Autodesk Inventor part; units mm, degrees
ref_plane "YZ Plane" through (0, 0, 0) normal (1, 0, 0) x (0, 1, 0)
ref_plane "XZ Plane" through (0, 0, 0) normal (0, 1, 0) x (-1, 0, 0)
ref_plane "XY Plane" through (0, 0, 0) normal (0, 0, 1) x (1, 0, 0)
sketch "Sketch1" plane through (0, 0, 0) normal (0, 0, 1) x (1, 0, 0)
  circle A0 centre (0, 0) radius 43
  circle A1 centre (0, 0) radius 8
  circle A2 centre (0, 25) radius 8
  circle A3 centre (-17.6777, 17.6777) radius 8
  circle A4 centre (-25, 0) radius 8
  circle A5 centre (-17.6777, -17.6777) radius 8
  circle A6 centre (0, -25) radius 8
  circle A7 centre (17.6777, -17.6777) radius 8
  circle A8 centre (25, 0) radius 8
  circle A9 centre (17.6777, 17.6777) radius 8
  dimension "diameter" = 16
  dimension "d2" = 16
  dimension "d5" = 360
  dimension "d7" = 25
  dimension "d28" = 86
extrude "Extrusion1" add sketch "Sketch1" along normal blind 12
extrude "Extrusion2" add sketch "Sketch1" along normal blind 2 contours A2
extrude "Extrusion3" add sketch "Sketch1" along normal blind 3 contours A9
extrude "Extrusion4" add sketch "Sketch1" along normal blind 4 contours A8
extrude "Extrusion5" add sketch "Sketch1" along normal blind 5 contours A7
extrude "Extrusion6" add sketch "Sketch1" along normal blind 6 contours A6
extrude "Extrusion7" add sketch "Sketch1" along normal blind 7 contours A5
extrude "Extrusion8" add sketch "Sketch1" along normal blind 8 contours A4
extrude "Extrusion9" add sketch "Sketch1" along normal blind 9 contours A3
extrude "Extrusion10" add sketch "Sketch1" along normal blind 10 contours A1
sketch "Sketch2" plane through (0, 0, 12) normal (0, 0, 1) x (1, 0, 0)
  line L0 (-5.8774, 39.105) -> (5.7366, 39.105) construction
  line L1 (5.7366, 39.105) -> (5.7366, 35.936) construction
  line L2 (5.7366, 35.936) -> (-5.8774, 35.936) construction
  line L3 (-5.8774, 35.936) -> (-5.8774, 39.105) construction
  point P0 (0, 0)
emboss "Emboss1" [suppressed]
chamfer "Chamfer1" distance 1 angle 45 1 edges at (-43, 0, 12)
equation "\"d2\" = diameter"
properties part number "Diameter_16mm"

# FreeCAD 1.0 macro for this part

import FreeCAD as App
import Part
import Sketcher
from FreeCAD import Vector
Q = App.Units.Quantity


def edges_at(feature, points):
    """Names of the edges that pass closest to the given points."""
    edges = feature.Shape.Edges
    near = lambda p: min(range(len(edges)), key=lambda i: edges[i].distToShape(Part.Vertex(*p))[0])
    return sorted({f"Edge{near(p) + 1}" for p in points})

doc = App.newDocument("Part")
body = doc.addObject("PartDesign::Body", "Body")

sketch1 = body.newObject("Sketcher::SketchObject", "Sketch")
sketch1.AttachmentSupport = (doc.getObject("XY_Plane"), [""])
sketch1.MapMode = "FlatFace"
sketch1.addGeometry([
    Part.Circle(Vector(0, 0, 0), Vector(0, 0, 1), 43),
    Part.Circle(Vector(-18, -18, 0), Vector(0, 0, 1), 8),
    Part.Circle(Vector(0, -25, 0), Vector(0, 0, 1), 8),
    Part.Circle(Vector(18, -18, 0), Vector(0, 0, 1), 8),
    Part.Circle(Vector(-25, 0, 0), Vector(0, 0, 1), 8),
    Part.Circle(Vector(-18, 18, 0), Vector(0, 0, 1), 8),
    Part.Circle(Vector(0, 0, 0), Vector(0, 0, 1), 8),
    Part.Circle(Vector(18, 18, 0), Vector(0, 0, 1), 8),
    Part.Circle(Vector(25, 0, 0), Vector(0, 0, 1), 8),
    Part.Circle(Vector(0, 25, 0), Vector(0, 0, 1), 8),
], False)
sketch1.addConstraint([
    Sketcher.Constraint("Coincident", 0, 3, -1, 1),
    Sketcher.Constraint("Coincident", 6, 3, -1, 1),
    Sketcher.Constraint("Equal", 1, 2),
    Sketcher.Constraint("Equal", 2, 3),
    Sketcher.Constraint("Equal", 3, 4),
    Sketcher.Constraint("Equal", 4, 5),
    Sketcher.Constraint("Equal", 5, 6),
    Sketcher.Constraint("Equal", 6, 7),
    Sketcher.Constraint("Equal", 7, 8),
    Sketcher.Constraint("Equal", 8, 9),
    Sketcher.Constraint("Symmetric", 3, 3, 5, 3, -1, 1),
    Sketcher.Constraint("Symmetric", 1, 3, 7, 3, -1, 1),
    Sketcher.Constraint("Symmetric", 4, 3, 8, 3, -1, 1),
    Sketcher.Constraint("Symmetric", 2, 3, 9, 3, -1, 1),
    Sketcher.Constraint("Symmetric", 1, 3, 3, 3, -2),
    Sketcher.Constraint("PointOnObject", 2, 3, -2),
    Sketcher.Constraint("PointOnObject", 4, 3, -1),
    Sketcher.Constraint("Diameter", 0, Q("86 mm")),
    Sketcher.Constraint("Diameter", 1, Q("16 mm")),
    Sketcher.Constraint("DistanceY", 2, 3, -1, 1, Q("25 mm")),
    Sketcher.Constraint("DistanceX", 4, 3, -1, 1, Q("25 mm")),
    Sketcher.Constraint("DistanceX", 1, 3, -1, 1, Q("17.6777 mm")),
    Sketcher.Constraint("DistanceY", 1, 3, -1, 1, Q("17.6777 mm")),
])
pad1 = body.newObject("PartDesign::Pad", "Pad")
pad1.Profile = sketch1
pad1.Length = 12

sketch2 = body.newObject("Sketcher::SketchObject", "Sketch001")
sketch2.AttachmentSupport = (doc.getObject("XY_Plane"), [""])
sketch2.MapMode = "FlatFace"
sketch2.addGeometry(Part.Circle(Vector(0, 25, 0), Vector(0, 0, 1), 8), False)
sketch2.addConstraint([
    Sketcher.Constraint("PointOnObject", 0, 3, -2),
    Sketcher.Constraint("Diameter", 0, Q("16 mm")),
    Sketcher.Constraint("DistanceY", -1, 1, 0, 3, Q("25 mm")),
])
pad2 = body.newObject("PartDesign::Pad", "Pad001")
pad2.Profile = sketch2
pad2.Length = 2

sketch3 = body.newObject("Sketcher::SketchObject", "Sketch002")
sketch3.AttachmentSupport = (doc.getObject("XY_Plane"), [""])
sketch3.MapMode = "FlatFace"
sketch3.addGeometry(Part.Circle(Vector(18, 18, 0), Vector(0, 0, 1), 8), False)
sketch3.addConstraint([
    Sketcher.Constraint("Diameter", 0, Q("16 mm")),
    Sketcher.Constraint("DistanceX", -1, 1, 0, 3, Q("17.6777 mm")),
    Sketcher.Constraint("DistanceY", -1, 1, 0, 3, Q("17.6777 mm")),
])
pad3 = body.newObject("PartDesign::Pad", "Pad002")
pad3.Profile = sketch3
pad3.Length = 3

sketch4 = body.newObject("Sketcher::SketchObject", "Sketch003")
sketch4.AttachmentSupport = (doc.getObject("XY_Plane"), [""])
sketch4.MapMode = "FlatFace"
sketch4.addGeometry(Part.Circle(Vector(25, 0, 0), Vector(0, 0, 1), 8), False)
sketch4.addConstraint([
    Sketcher.Constraint("PointOnObject", 0, 3, -1),
    Sketcher.Constraint("Diameter", 0, Q("16 mm")),
    Sketcher.Constraint("DistanceX", -1, 1, 0, 3, Q("25 mm")),
])
pad4 = body.newObject("PartDesign::Pad", "Pad003")
pad4.Profile = sketch4
pad4.Length = 4

sketch5 = body.newObject("Sketcher::SketchObject", "Sketch004")
sketch5.AttachmentSupport = (doc.getObject("XY_Plane"), [""])
sketch5.MapMode = "FlatFace"
sketch5.addGeometry(Part.Circle(Vector(18, -18, 0), Vector(0, 0, 1), 8), False)
sketch5.addConstraint([
    Sketcher.Constraint("Diameter", 0, Q("16 mm")),
    Sketcher.Constraint("DistanceX", -1, 1, 0, 3, Q("17.6777 mm")),
    Sketcher.Constraint("DistanceY", 0, 3, -1, 1, Q("17.6777 mm")),
])
pad5 = body.newObject("PartDesign::Pad", "Pad004")
pad5.Profile = sketch5
pad5.Length = 5

sketch6 = body.newObject("Sketcher::SketchObject", "Sketch005")
sketch6.AttachmentSupport = (doc.getObject("XY_Plane"), [""])
sketch6.MapMode = "FlatFace"
sketch6.addGeometry(Part.Circle(Vector(0, -25, 0), Vector(0, 0, 1), 8), False)
sketch6.addConstraint([
    Sketcher.Constraint("PointOnObject", 0, 3, -2),
    Sketcher.Constraint("Diameter", 0, Q("16 mm")),
    Sketcher.Constraint("DistanceY", 0, 3, -1, 1, Q("25 mm")),
])
pad6 = body.newObject("PartDesign::Pad", "Pad005")
pad6.Profile = sketch6
pad6.Length = 6

sketch7 = body.newObject("Sketcher::SketchObject", "Sketch006")
sketch7.AttachmentSupport = (doc.getObject("XY_Plane"), [""])
sketch7.MapMode = "FlatFace"
sketch7.addGeometry(Part.Circle(Vector(-18, -18, 0), Vector(0, 0, 1), 8), False)
sketch7.addConstraint([
    Sketcher.Constraint("Diameter", 0, Q("16 mm")),
    Sketcher.Constraint("DistanceX", 0, 3, -1, 1, Q("17.6777 mm")),
    Sketcher.Constraint("DistanceY", 0, 3, -1, 1, Q("17.6777 mm")),
])
pad7 = body.newObject("PartDesign::Pad", "Pad006")
pad7.Profile = sketch7
pad7.Length = 7

sketch8 = body.newObject("Sketcher::SketchObject", "Sketch007")
sketch8.AttachmentSupport = (doc.getObject("XY_Plane"), [""])
sketch8.MapMode = "FlatFace"
sketch8.addGeometry(Part.Circle(Vector(-25, 0, 0), Vector(0, 0, 1), 8), False)
sketch8.addConstraint([
    Sketcher.Constraint("PointOnObject", 0, 3, -1),
    Sketcher.Constraint("Diameter", 0, Q("16 mm")),
    Sketcher.Constraint("DistanceX", 0, 3, -1, 1, Q("25 mm")),
])
pad8 = body.newObject("PartDesign::Pad", "Pad007")
pad8.Profile = sketch8
pad8.Length = 8

sketch9 = body.newObject("Sketcher::SketchObject", "Sketch008")
sketch9.AttachmentSupport = (doc.getObject("XY_Plane"), [""])
sketch9.MapMode = "FlatFace"
sketch9.addGeometry(Part.Circle(Vector(-18, 18, 0), Vector(0, 0, 1), 8), False)
sketch9.addConstraint([
    Sketcher.Constraint("Diameter", 0, Q("16 mm")),
    Sketcher.Constraint("DistanceX", 0, 3, -1, 1, Q("17.6777 mm")),
    Sketcher.Constraint("DistanceY", -1, 1, 0, 3, Q("17.6777 mm")),
])
pad9 = body.newObject("PartDesign::Pad", "Pad008")
pad9.Profile = sketch9
pad9.Length = 9

sketch10 = body.newObject("Sketcher::SketchObject", "Sketch009")
sketch10.AttachmentSupport = (doc.getObject("XY_Plane"), [""])
sketch10.MapMode = "FlatFace"
sketch10.addGeometry(Part.Circle(Vector(0, 0, 0), Vector(0, 0, 1), 8), False)
sketch10.addConstraint([
    Sketcher.Constraint("Coincident", 0, 3, -1, 1),
    Sketcher.Constraint("Diameter", 0, Q("16 mm")),
])
pad10 = body.newObject("PartDesign::Pad", "Pad009")
pad10.Profile = sketch10
pad10.Length = 10
doc.recompute()

chamfer = body.newObject("PartDesign::Chamfer", "Chamfer")
chamfer.Base = (pad10, edges_at(pad10, [(-43, 0, 12)]))
chamfer.Size = 1

doc.recompute()
